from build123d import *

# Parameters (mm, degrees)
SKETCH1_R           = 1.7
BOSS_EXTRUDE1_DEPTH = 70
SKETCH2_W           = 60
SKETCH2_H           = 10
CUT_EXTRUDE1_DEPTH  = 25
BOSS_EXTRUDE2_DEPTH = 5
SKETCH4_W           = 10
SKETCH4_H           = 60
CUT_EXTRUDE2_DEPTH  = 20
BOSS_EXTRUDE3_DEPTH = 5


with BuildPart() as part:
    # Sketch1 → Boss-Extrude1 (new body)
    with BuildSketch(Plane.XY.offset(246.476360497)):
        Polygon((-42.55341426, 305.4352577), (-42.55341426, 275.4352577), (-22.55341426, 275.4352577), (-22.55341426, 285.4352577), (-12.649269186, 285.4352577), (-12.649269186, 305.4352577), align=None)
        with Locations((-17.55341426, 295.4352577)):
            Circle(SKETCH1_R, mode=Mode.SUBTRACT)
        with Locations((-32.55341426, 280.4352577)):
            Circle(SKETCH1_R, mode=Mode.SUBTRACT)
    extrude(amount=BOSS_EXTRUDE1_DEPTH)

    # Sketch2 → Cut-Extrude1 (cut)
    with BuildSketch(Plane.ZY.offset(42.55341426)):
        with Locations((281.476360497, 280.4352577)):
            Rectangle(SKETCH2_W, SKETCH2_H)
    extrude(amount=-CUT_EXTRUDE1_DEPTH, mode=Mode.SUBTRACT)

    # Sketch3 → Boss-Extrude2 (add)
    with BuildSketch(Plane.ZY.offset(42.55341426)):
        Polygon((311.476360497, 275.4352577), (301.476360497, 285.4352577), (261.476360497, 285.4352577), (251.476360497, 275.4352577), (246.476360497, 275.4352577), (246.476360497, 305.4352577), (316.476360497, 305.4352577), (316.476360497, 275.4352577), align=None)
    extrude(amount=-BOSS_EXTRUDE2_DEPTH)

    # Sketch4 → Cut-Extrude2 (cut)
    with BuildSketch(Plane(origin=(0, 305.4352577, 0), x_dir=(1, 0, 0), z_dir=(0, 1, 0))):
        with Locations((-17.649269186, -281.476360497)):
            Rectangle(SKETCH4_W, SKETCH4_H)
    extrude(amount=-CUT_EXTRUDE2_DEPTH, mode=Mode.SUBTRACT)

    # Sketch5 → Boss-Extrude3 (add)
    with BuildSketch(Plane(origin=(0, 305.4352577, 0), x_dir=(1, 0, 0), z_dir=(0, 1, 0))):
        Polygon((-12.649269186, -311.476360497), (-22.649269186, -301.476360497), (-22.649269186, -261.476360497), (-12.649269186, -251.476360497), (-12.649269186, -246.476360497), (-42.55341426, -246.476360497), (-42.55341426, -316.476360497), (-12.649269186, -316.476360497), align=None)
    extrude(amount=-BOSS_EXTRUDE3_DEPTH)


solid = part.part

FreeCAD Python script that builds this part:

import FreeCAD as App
import Part
import Sketcher
from FreeCAD import Vector
Q = App.Units.Quantity


def add_polygon(sketch, points):
    """Adds a closed chain of lines whose ends are joined by coincident constraints."""
    first, n = sketch.GeometryCount, len(points)
    for a, b in zip(points, points[1:] + points[:1]):
        sketch.addGeometry(Part.LineSegment(App.Vector(*a, 0), App.Vector(*b, 0)), False)
    for i in range(n):
        sketch.addConstraint(Sketcher.Constraint("Coincident", first + i, 2, first + (i + 1) % n, 1))

doc = App.newDocument("Part")
body = doc.addObject("PartDesign::Body", "Body")

# Sketch on XY plane
sketch1 = body.newObject("Sketcher::SketchObject", "Sketch")
sketch1.AttachmentSupport = (doc.getObject("XY_Plane"), [""])
sketch1.MapMode = "FlatFace"
sketch1.AttachmentOffset = App.Placement(Vector(0, 0, 246.47636), App.Rotation())
add_polygon(sketch1, [(-42.6, 305.4), (-42.6, 275.4), (-22.6, 275.4), (-22.6, 285.4), (-12.6, 285.4), (-12.6, 305.4)])  # lines 0-5
sketch1.addGeometry(Part.Circle(Vector(-32.6, 280.4, 0), Vector(0, 0, 1), 1.7), False)  # 6
sketch1.addGeometry(Part.Circle(Vector(-17.6, 295.4, 0), Vector(0, 0, 1), 1.7), False)  # 7
sketch1.addConstraint(Sketcher.Constraint("Vertical", 0))
sketch1.addConstraint(Sketcher.Constraint("Horizontal", 1))
sketch1.addConstraint(Sketcher.Constraint("Vertical", 2))
sketch1.addConstraint(Sketcher.Constraint("Horizontal", 3))
sketch1.addConstraint(Sketcher.Constraint("Vertical", 4))
sketch1.addConstraint(Sketcher.Constraint("Horizontal", 5))
sketch1.addConstraint(Sketcher.Constraint("Equal", 6, 7))
sketch1.addConstraint(Sketcher.Constraint("Equal", 1, 4))
sketch1.addConstraint(Sketcher.Constraint("Diameter", 6, Q("3.4 mm")))
sketch1.addConstraint(Sketcher.Constraint("DistanceX", 1, 1, 1, 2, Q("20 mm")))
sketch1.addConstraint(Sketcher.Constraint("DistanceY", 0, 2, 0, 1, Q("30 mm")))
sketch1.addConstraint(Sketcher.Constraint("DistanceX", 6, 3, 7, 3, Q("15 mm")))
sketch1.addConstraint(Sketcher.Constraint("DistanceY", 6, 3, 7, 3, Q("15 mm")))
sketch1.addConstraint(Sketcher.Constraint("DistanceX", 0, 2, 6, 3, Q("10 mm")))
sketch1.addConstraint(Sketcher.Constraint("DistanceY", 0, 2, 6, 3, Q("5 mm")))
sketch1.addConstraint(Sketcher.Constraint("DistanceX", 3, 1, 3, 2, Q("9.904145 mm")))
sketch1.addConstraint(Sketcher.Constraint("DistanceX", 3, 2, -1, 1, Q("12.649269 mm")))
sketch1.addConstraint(Sketcher.Constraint("DistanceY", -1, 1, 6, 3, Q("280.435258 mm")))
pad1 = body.newObject("PartDesign::Pad", "Pad")
pad1.Profile = sketch1
pad1.Length = 70

# Sketch on YZ plane
sketch2 = body.newObject("Sketcher::SketchObject", "Sketch001")
sketch2.AttachmentSupport = (doc.getObject("YZ_Plane"), [""])
sketch2.MapMode = "FlatFace"
sketch2.AttachmentOffset = App.Placement(Vector(0, 0, -42.553414), App.Rotation())
add_polygon(sketch2, [(285, 251), (275, 251), (275, 311), (285, 311)])  # lines 0-3
sketch2.addConstraint(Sketcher.Constraint("Horizontal", 0))
sketch2.addConstraint(Sketcher.Constraint("Vertical", 1))
sketch2.addConstraint(Sketcher.Constraint("Horizontal", 2))
sketch2.addConstraint(Sketcher.Constraint("Vertical", 3))
sketch2.addConstraint(Sketcher.Constraint("DistanceX", 0, 2, 0, 1, Q("10 mm")))
sketch2.addConstraint(Sketcher.Constraint("DistanceY", 1, 1, 1, 2, Q("60 mm")))
sketch2.addConstraint(Sketcher.Constraint("DistanceY", -1, 1, 0, 2, Q("251.47636 mm")))
sketch2.addConstraint(Sketcher.Constraint("DistanceX", -1, 1, 0, 2, Q("275.435258 mm")))
pocket1 = body.newObject("PartDesign::Pocket", "Pocket")
pocket1.Profile = sketch2
pocket1.Length = 25
pocket1.Reversed = True

# Sketch on YZ plane
sketch3 = body.newObject("Sketcher::SketchObject", "Sketch002")
sketch3.AttachmentSupport = (doc.getObject("YZ_Plane"), [""])
sketch3.MapMode = "FlatFace"
sketch3.AttachmentOffset = App.Placement(Vector(0, 0, -42.553414), App.Rotation())
add_polygon(sketch3, [(285, 301), (275, 311), (275, 316), (305, 316), (305, 246), (275, 246), (275, 251), (285, 261)])  # lines 0-7
sketch3.addConstraint(Sketcher.Constraint("Vertical", 1))
sketch3.addConstraint(Sketcher.Constraint("Horizontal", 2))
sketch3.addConstraint(Sketcher.Constraint("Vertical", 3))
sketch3.addConstraint(Sketcher.Constraint("Horizontal", 4))
sketch3.addConstraint(Sketcher.Constraint("Vertical", 5))
sketch3.addConstraint(Sketcher.Constraint("Vertical", 7))
sketch3.addConstraint(Sketcher.Constraint("Perpendicular", 0, 6))
sketch3.addConstraint(Sketcher.Constraint("Vertical", 1, 2, 4, 2))
sketch3.addConstraint(Sketcher.Constraint("Equal", 1, 5))
sketch3.addConstraint(Sketcher.Constraint("Equal", 0, 6))
sketch3.addConstraint(Sketcher.Constraint("DistanceX", 2, 1, 2, 2, Q("30 mm")))
sketch3.addConstraint(Sketcher.Constraint("DistanceY", 1, 1, 1, 2, Q("5 mm")))
sketch3.addConstraint(Sketcher.Constraint("DistanceY", 3, 2, 3, 1, Q("70 mm")))
sketch3.addConstraint(Sketcher.Constraint("DistanceY", 7, 1, 7, 2, Q("40 mm")))
sketch3.addConstraint(Sketcher.Constraint("DistanceY", -1, 1, 0, 2, Q("311.47636 mm")))
sketch3.addConstraint(Sketcher.Constraint("DistanceX", -1, 1, 0, 2, Q("275.435258 mm")))
pad2 = body.newObject("PartDesign::Pad", "Pad001")
pad2.Profile = sketch3
pad2.Length = 5

# Sketch on XZ plane
sketch4 = body.newObject("Sketcher::SketchObject", "Sketch003")
sketch4.AttachmentSupport = (doc.getObject("XZ_Plane"), [""])
sketch4.MapMode = "FlatFace"
sketch4.AttachmentOffset = App.Placement(Vector(0, 0, -305.435258), App.Rotation())
add_polygon(sketch4, [(-23, 251), (-23, 311), (-13, 311), (-13, 251)])  # lines 0-3
sketch4.addConstraint(Sketcher.Constraint("Vertical", 0))
sketch4.addConstraint(Sketcher.Constraint("Horizontal", 1))
sketch4.addConstraint(Sketcher.Constraint("Vertical", 2))
sketch4.addConstraint(Sketcher.Constraint("Horizontal", 3))
sketch4.addConstraint(Sketcher.Constraint("DistanceX", 1, 1, 1, 2, Q("10 mm")))
sketch4.addConstraint(Sketcher.Constraint("DistanceY", 0, 1, 0, 2, Q("60 mm")))
sketch4.addConstraint(Sketcher.Constraint("DistanceX", 0, 2, -1, 1, Q("22.649269 mm")))
sketch4.addConstraint(Sketcher.Constraint("DistanceY", -1, 1, 0, 2, Q("311.47636 mm")))
pocket2 = body.newObject("PartDesign::Pocket", "Pocket001")
pocket2.Profile = sketch4
pocket2.Length = 20
pocket2.Reversed = True

# Sketch on XZ plane
sketch5 = body.newObject("Sketcher::SketchObject", "Sketch004")
sketch5.AttachmentSupport = (doc.getObject("XZ_Plane"), [""])
sketch5.MapMode = "FlatFace"
sketch5.AttachmentOffset = App.Placement(Vector(0, 0, -305.435258), App.Rotation())
add_polygon(sketch5, [(-13, 311), (-23, 301), (-23, 261), (-13, 251), (-13, 246), (-43, 246), (-43, 316), (-13, 316)])  # lines 0-7
sketch5.addConstraint(Sketcher.Constraint("Vertical", 1))
sketch5.addConstraint(Sketcher.Constraint("Vertical", 3))
sketch5.addConstraint(Sketcher.Constraint("Horizontal", 4))
sketch5.addConstraint(Sketcher.Constraint("Vertical", 5))
sketch5.addConstraint(Sketcher.Constraint("Horizontal", 6))
sketch5.addConstraint(Sketcher.Constraint("Vertical", 7))
sketch5.addConstraint(Sketcher.Constraint("Perpendicular", 0, 2))
sketch5.addConstraint(Sketcher.Constraint("Vertical", 3, 2, 6, 2))
sketch5.addConstraint(Sketcher.Constraint("Equal", 3, 7))
sketch5.addConstraint(Sketcher.Constraint("Equal", 0, 2))
sketch5.addConstraint(Sketcher.Constraint("DistanceY", 1, 2, 1, 1, Q("40 mm")))
sketch5.addConstraint(Sketcher.Constraint("DistanceY", 3, 2, 3, 1, Q("5 mm")))
sketch5.addConstraint(Sketcher.Constraint("DistanceY", 5, 1, 5, 2, Q("70 mm")))
sketch5.addConstraint(Sketcher.Constraint("DistanceX", 4, 2, 4, 1, Q("29.904145 mm")))
sketch5.addConstraint(Sketcher.Constraint("DistanceX", 0, 2, -1, 1, Q("22.649269 mm")))
sketch5.addConstraint(Sketcher.Constraint("DistanceY", -1, 1, 0, 2, Q("301.47636 mm")))
pad3 = body.newObject("PartDesign::Pad", "Pad002")
pad3.Profile = sketch5
pad3.Length = 5

doc.recompute()
